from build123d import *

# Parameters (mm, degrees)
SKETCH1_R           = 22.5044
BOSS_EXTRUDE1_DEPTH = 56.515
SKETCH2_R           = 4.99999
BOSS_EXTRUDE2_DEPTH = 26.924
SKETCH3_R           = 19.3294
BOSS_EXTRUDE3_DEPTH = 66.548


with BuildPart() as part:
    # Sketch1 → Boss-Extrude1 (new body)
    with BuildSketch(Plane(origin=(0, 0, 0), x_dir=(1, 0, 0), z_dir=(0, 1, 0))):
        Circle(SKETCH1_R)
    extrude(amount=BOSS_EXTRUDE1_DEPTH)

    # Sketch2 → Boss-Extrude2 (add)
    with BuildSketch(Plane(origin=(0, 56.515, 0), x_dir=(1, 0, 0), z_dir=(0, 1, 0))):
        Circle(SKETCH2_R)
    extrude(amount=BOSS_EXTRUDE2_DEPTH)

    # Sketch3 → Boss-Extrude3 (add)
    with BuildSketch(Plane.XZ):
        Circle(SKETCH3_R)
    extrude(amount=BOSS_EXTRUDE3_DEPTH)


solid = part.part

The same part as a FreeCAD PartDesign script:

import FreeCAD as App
import Part
import Sketcher

V = App.Vector
Q = App.Units.Quantity

doc = App.newDocument("Part")
body = doc.addObject("PartDesign::Body", "Body")

sketch1 = body.newObject("Sketcher::SketchObject", "Sketch")
sketch1.AttachmentSupport = (doc.getObject("XZ_Plane"), [""])
sketch1.MapMode = "FlatFace"
sketch1.addGeometry(Part.Circle(V(0, 0, 0), V(0, 0, 1), 23), False)
sketch1.addConstraint(Sketcher.Constraint("Coincident", 0, 3, -1, 1))
sketch1.addConstraint(Sketcher.Constraint("Diameter", 0, Q("1.772 in")))
pad1 = body.newObject("PartDesign::Pad", "Pad")
pad1.Profile = sketch1
pad1.Length = Q("2.225 in")
pad1.Reversed = True

sketch2 = body.newObject("Sketcher::SketchObject", "Sketch001")
sketch2.AttachmentSupport = (doc.getObject("XZ_Plane"), [""])
sketch2.MapMode = "FlatFace"
sketch2.AttachmentOffset = App.Placement(V(0, 0, -2.225 * 25.4), App.Rotation())
sketch2.addGeometry(Part.Circle(V(0, 0, 0), V(0, 0, 1), 5), False)
sketch2.addConstraint(Sketcher.Constraint("Coincident", 0, 3, -1, 1))
sketch2.addConstraint(Sketcher.Constraint("Diameter", 0, Q("0.3937 in")))
pad2 = body.newObject("PartDesign::Pad", "Pad001")
pad2.Profile = sketch2
pad2.Length = Q("1.06 in")
pad2.Reversed = True

sketch3 = body.newObject("Sketcher::SketchObject", "Sketch002")
sketch3.AttachmentSupport = (doc.getObject("XZ_Plane"), [""])
sketch3.MapMode = "FlatFace"
sketch3.addGeometry(Part.Circle(V(0, 0, 0), V(0, 0, 1), 19), False)
sketch3.addConstraint(Sketcher.Constraint("Coincident", 0, 3, -1, 1))
sketch3.addConstraint(Sketcher.Constraint("Diameter", 0, Q("1.522 in")))
pad3 = body.newObject("PartDesign::Pad", "Pad002")
pad3.Profile = sketch3
pad3.Length = Q("2.62 in")

doc.recompute()
